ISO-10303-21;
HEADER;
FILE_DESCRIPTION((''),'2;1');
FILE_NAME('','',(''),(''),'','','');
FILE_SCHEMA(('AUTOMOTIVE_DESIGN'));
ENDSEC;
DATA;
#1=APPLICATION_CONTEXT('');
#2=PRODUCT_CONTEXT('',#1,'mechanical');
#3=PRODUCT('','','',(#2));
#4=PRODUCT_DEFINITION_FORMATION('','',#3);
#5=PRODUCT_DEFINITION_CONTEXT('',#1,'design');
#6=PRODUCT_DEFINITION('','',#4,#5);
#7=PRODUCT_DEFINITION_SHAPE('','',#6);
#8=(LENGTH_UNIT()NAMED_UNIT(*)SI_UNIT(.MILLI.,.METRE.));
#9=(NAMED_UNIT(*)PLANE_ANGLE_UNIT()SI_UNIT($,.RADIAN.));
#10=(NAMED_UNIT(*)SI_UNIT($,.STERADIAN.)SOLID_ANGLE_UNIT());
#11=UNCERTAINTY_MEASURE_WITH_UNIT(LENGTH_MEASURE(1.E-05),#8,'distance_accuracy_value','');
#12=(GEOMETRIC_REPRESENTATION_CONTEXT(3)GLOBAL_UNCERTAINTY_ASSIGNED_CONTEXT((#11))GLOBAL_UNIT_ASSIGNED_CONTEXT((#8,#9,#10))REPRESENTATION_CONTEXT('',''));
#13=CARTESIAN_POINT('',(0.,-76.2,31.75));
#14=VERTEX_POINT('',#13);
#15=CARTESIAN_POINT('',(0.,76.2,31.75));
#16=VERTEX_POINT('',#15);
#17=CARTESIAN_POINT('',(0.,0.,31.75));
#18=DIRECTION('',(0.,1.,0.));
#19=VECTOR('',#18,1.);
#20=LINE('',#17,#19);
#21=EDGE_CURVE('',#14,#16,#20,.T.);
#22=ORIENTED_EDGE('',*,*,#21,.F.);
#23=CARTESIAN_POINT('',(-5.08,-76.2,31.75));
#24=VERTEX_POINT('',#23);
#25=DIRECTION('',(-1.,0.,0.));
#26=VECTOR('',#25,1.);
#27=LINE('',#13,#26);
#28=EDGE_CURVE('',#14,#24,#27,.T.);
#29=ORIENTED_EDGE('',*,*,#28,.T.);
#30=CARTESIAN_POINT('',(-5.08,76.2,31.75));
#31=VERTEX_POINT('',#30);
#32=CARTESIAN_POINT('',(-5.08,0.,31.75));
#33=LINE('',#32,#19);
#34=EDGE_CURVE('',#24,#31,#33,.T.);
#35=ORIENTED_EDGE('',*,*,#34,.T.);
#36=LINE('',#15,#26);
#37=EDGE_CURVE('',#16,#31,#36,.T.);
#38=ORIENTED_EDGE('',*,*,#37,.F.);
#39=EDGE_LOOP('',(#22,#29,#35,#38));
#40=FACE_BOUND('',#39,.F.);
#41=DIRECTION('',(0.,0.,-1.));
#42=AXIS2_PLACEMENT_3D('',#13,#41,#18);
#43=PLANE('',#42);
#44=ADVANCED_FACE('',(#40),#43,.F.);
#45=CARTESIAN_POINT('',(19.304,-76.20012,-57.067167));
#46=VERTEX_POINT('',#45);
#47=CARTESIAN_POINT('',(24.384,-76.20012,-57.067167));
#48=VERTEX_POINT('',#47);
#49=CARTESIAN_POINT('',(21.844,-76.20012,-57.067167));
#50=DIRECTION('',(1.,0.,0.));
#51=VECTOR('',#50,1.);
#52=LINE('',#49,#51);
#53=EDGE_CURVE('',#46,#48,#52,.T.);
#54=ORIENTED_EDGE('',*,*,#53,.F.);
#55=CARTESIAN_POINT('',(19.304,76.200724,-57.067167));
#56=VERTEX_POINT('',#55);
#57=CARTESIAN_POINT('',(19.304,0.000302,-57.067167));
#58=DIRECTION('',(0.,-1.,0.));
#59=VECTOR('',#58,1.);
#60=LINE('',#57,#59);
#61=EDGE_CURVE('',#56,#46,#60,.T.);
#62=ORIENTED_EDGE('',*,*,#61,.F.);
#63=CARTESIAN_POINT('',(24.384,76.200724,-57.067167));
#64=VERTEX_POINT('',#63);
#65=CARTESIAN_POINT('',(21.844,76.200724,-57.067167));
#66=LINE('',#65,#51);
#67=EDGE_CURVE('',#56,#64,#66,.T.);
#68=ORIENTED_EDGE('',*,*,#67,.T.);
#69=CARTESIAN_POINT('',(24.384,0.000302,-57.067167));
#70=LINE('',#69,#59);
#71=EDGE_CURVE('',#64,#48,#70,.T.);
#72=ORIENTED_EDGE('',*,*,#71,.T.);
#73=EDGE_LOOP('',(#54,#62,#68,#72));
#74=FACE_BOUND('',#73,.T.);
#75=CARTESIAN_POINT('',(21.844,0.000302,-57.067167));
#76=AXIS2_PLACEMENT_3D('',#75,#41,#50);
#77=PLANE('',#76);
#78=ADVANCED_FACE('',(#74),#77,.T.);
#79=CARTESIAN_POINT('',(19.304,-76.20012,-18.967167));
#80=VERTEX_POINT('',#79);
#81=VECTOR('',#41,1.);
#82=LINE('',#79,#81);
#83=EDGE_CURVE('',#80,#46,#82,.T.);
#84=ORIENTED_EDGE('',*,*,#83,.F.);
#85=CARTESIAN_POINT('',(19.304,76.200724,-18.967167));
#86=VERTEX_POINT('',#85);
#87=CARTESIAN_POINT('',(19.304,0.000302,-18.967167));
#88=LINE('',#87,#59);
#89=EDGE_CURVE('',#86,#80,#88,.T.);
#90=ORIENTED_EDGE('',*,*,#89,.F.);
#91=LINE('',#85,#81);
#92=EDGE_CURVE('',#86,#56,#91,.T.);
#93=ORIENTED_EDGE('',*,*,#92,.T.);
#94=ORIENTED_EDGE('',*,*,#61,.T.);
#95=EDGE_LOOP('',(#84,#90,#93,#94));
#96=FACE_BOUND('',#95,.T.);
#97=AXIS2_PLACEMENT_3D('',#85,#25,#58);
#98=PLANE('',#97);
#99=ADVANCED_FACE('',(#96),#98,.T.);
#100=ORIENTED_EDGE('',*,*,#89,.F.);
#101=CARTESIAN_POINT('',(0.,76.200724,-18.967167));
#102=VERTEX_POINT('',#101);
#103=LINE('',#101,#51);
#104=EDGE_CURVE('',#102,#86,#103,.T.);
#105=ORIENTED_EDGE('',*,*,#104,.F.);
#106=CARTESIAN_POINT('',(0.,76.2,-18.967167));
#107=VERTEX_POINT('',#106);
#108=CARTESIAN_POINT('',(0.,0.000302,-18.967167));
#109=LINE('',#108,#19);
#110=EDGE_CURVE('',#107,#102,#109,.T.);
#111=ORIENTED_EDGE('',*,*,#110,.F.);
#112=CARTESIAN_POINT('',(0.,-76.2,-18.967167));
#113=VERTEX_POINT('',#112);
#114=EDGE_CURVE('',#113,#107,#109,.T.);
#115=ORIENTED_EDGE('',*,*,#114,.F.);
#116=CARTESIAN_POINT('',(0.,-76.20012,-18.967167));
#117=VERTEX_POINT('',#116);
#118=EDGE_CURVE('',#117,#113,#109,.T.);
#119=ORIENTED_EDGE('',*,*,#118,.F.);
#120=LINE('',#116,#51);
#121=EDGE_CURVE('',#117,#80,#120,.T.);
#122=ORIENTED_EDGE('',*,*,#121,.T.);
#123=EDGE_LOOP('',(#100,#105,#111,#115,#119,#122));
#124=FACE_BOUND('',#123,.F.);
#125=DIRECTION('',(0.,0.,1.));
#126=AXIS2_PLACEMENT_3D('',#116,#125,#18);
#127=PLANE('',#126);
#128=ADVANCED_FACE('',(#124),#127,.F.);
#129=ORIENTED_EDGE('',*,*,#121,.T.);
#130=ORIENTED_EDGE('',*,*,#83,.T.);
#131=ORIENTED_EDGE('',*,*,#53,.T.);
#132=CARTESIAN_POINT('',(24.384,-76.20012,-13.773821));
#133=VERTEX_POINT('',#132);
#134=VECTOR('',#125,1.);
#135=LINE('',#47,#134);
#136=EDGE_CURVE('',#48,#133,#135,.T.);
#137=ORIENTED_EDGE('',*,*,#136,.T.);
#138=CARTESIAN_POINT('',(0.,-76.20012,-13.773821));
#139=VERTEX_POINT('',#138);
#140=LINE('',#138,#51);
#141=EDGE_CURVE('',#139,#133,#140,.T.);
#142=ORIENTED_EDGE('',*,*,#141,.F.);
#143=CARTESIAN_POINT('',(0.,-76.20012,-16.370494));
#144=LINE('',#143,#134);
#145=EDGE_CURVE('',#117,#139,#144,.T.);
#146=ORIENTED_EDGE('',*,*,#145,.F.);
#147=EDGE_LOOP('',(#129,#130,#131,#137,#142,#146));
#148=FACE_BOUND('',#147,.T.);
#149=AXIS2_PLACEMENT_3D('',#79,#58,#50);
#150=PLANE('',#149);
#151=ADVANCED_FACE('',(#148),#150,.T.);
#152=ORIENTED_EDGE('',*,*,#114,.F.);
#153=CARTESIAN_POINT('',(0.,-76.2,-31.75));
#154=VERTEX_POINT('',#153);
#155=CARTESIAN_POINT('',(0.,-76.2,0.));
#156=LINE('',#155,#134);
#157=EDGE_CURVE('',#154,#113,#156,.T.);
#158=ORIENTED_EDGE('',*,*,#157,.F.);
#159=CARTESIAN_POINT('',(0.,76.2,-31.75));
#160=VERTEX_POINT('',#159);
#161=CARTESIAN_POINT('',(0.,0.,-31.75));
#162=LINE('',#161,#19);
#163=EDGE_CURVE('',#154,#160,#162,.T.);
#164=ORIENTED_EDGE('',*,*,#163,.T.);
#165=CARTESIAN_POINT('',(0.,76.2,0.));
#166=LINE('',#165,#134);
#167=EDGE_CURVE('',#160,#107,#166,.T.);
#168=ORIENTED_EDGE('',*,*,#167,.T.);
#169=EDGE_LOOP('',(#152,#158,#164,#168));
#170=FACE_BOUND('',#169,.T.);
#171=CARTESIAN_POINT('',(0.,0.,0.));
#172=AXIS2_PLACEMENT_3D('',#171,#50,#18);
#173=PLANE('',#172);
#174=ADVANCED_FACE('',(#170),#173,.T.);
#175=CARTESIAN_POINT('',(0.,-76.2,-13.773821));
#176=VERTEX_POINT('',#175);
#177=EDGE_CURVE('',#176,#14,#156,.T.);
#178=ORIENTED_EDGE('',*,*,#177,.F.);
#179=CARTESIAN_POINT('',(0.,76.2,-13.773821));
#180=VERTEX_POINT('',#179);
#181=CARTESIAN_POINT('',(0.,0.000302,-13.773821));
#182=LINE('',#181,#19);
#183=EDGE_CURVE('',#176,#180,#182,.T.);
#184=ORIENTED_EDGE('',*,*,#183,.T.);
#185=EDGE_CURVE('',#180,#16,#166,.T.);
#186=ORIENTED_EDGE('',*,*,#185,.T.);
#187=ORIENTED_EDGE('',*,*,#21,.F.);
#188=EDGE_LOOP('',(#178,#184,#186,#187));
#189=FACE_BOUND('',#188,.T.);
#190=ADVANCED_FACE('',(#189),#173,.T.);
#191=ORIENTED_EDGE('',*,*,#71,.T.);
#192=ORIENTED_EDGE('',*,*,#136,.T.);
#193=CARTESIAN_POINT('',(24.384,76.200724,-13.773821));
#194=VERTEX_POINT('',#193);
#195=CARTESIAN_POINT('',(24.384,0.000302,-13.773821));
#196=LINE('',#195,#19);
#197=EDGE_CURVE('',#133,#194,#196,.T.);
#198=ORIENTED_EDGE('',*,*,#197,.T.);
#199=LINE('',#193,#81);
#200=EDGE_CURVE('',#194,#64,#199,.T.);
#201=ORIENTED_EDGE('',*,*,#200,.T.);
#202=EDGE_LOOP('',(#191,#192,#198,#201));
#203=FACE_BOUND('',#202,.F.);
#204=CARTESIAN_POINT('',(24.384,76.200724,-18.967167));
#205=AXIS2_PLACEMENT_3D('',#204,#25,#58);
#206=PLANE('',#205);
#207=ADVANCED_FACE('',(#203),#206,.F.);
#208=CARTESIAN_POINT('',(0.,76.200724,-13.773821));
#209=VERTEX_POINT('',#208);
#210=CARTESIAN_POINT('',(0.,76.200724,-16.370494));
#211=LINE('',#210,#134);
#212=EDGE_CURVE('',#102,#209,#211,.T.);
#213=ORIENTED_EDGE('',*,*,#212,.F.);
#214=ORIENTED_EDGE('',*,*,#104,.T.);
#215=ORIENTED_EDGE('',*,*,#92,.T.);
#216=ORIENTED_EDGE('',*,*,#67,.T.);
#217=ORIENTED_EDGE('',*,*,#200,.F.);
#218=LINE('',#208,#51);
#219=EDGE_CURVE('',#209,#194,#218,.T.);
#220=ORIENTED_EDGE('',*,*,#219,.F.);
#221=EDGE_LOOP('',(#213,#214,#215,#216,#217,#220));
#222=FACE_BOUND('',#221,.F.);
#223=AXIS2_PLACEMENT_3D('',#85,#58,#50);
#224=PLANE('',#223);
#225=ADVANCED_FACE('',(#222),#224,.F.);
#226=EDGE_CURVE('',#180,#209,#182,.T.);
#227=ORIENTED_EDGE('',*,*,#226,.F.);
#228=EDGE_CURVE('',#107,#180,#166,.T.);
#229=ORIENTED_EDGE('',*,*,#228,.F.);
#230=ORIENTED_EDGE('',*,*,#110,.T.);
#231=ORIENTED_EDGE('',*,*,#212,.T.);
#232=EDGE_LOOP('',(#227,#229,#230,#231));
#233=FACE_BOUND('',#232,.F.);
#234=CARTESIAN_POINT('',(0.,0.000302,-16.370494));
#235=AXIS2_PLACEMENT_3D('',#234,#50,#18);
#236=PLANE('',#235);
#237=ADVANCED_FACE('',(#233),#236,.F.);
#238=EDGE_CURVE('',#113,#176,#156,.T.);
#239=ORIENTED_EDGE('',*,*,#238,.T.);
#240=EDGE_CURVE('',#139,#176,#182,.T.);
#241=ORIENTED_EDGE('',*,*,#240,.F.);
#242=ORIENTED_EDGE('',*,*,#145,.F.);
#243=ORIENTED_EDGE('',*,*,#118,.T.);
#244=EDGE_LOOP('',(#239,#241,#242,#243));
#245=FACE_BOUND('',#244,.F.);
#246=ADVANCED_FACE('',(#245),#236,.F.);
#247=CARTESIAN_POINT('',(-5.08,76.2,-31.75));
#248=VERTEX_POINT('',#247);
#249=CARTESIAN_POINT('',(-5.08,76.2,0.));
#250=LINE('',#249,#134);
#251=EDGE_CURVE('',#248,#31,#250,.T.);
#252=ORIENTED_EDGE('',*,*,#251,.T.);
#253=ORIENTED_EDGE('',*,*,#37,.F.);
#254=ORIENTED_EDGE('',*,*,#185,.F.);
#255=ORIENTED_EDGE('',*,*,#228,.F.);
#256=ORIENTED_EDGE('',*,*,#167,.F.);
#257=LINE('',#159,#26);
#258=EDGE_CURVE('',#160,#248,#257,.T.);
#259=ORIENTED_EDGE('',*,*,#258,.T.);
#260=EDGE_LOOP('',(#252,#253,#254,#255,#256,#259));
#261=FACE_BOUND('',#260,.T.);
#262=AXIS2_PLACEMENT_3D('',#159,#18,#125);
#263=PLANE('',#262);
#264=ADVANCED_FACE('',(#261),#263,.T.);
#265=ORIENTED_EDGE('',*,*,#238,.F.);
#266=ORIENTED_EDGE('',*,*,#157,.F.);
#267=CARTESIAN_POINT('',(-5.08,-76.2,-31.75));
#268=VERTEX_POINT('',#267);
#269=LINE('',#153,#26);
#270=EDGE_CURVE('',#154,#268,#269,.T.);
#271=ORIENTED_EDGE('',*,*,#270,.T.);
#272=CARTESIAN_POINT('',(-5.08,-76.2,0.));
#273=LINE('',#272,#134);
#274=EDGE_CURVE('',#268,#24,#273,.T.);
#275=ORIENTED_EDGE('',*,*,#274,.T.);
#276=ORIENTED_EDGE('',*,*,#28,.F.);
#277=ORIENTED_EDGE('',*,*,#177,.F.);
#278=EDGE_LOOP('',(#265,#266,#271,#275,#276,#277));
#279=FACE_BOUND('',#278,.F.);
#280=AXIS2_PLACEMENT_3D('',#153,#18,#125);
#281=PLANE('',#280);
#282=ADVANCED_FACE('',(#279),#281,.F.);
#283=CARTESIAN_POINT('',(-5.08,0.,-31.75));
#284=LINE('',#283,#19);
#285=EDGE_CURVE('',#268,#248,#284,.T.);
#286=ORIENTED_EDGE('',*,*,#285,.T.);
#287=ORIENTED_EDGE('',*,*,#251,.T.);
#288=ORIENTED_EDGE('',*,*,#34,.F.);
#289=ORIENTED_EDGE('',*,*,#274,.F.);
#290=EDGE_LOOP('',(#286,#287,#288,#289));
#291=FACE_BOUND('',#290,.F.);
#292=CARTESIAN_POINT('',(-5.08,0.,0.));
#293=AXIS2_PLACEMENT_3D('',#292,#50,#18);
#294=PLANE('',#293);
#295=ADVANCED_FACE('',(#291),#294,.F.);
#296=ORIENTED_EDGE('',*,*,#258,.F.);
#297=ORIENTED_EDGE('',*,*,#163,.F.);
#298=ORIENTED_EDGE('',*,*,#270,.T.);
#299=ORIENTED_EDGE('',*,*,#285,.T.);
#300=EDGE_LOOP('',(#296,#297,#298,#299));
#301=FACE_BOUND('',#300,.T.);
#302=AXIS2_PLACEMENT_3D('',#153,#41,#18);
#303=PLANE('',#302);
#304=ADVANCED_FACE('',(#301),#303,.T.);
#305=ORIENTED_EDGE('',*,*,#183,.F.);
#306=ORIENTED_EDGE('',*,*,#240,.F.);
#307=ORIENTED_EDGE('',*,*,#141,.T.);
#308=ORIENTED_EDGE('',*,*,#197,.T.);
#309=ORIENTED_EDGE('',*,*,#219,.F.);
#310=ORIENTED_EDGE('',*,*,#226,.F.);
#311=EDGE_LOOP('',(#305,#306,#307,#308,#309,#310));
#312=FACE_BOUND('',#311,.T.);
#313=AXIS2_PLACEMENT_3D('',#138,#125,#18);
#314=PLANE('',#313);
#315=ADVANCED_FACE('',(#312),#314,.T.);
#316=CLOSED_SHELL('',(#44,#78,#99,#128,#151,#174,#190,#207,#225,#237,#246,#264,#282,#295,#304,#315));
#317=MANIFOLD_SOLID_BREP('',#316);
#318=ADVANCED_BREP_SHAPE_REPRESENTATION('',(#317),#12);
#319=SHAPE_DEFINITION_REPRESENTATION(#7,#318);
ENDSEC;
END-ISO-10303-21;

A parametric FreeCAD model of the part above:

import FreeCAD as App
import Part
import Sketcher
from FreeCAD import Vector
Q = App.Units.Quantity

doc = App.newDocument("Part")
body = doc.addObject("PartDesign::Body", "Body")

sketch1 = body.newObject("Sketcher::SketchObject", "Sketch")
sketch1.AttachmentSupport = (doc.getObject("YZ_Plane"), [""])
sketch1.MapMode = "FlatFace"
sketch1.addGeometry(Part.LineSegment(Vector(-76, 32, 0), Vector(-76, -32, 0)), False)
sketch1.addGeometry(Part.LineSegment(Vector(-76, -32, 0), Vector(76, -32, 0)), False)
sketch1.addGeometry(Part.LineSegment(Vector(76, -32, 0), Vector(76, 32, 0)), False)
sketch1.addGeometry(Part.LineSegment(Vector(76, 32, 0), Vector(-76, 32, 0)), False)
sketch1.addConstraint(Sketcher.Constraint("Coincident", 0, 2, 1, 1))
sketch1.addConstraint(Sketcher.Constraint("Coincident", 1, 2, 2, 1))
sketch1.addConstraint(Sketcher.Constraint("Coincident", 2, 2, 3, 1))
sketch1.addConstraint(Sketcher.Constraint("Coincident", 3, 2, 0, 1))
sketch1.addConstraint(Sketcher.Constraint("Vertical", 0))
sketch1.addConstraint(Sketcher.Constraint("Horizontal", 1))
sketch1.addConstraint(Sketcher.Constraint("Vertical", 2))
sketch1.addConstraint(Sketcher.Constraint("Horizontal", 3))
sketch1.addConstraint(Sketcher.Constraint("Symmetric", 0, 2, 2, 2, -1, 1))
sketch1.addConstraint(Sketcher.Constraint("DistanceX", 1, 1, 1, 2, Q("6 in")))
sketch1.addConstraint(Sketcher.Constraint("DistanceY", 0, 2, 0, 1, Q("2.5 in")))
pad1 = body.newObject("PartDesign::Pad", "Pad")
pad1.Profile = sketch1
pad1.Length = Q("0.2 in")
pad1.Reversed = True

sketch2 = body.newObject("Sketcher::SketchObject", "Sketch001")
sketch2.AttachmentSupport = (doc.getObject("YZ_Plane"), [""])
sketch2.MapMode = "FlatFace"
sketch2.addGeometry(Part.LineSegment(Vector(-76, -14, 0), Vector(-76, -19, 0)), False)
sketch2.addGeometry(Part.LineSegment(Vector(-76, -19, 0), Vector(76, -19, 0)), False)
sketch2.addGeometry(Part.LineSegment(Vector(76, -19, 0), Vector(76, -14, 0)), False)
sketch2.addGeometry(Part.LineSegment(Vector(76, -14, 0), Vector(-76, -14, 0)), False)
sketch2.addConstraint(Sketcher.Constraint("Coincident", 0, 2, 1, 1))
sketch2.addConstraint(Sketcher.Constraint("Coincident", 1, 2, 2, 1))
sketch2.addConstraint(Sketcher.Constraint("Coincident", 2, 2, 3, 1))
sketch2.addConstraint(Sketcher.Constraint("Coincident", 3, 2, 0, 1))
sketch2.addConstraint(Sketcher.Constraint("Vertical", 0))
sketch2.addConstraint(Sketcher.Constraint("Horizontal", 1))
sketch2.addConstraint(Sketcher.Constraint("Vertical", 2))
sketch2.addConstraint(Sketcher.Constraint("Horizontal", 3))
sketch2.addConstraint(Sketcher.Constraint("DistanceX", 1, 1, 1, 2, 152.400844))
sketch2.addConstraint(Sketcher.Constraint("DistanceY", 0, 2, 0, 1, 5.193346))
sketch2.addConstraint(Sketcher.Constraint("DistanceX", 0, 2, -1, 1, 76.20012))
sketch2.addConstraint(Sketcher.Constraint("DistanceY", 2, 2, -1, 1, 13.773821))
pad2 = body.newObject("PartDesign::Pad", "Pad001")
pad2.Profile = sketch2
pad2.Length = Q("0.96 in")

sketch3 = body.newObject("Sketcher::SketchObject", "Sketch002")
sketch3.AttachmentSupport = (doc.getObject("XY_Plane"), [""])
sketch3.MapMode = "FlatFace"
sketch3.AttachmentOffset = App.Placement(Vector(0, 0, -18.967167), App.Rotation())
sketch3.addGeometry(Part.LineSegment(Vector(19, -76, 0), Vector(19, 76, 0)), False)
sketch3.addGeometry(Part.LineSegment(Vector(19, 76, 0), Vector(24, 76, 0)), False)
sketch3.addGeometry(Part.LineSegment(Vector(24, 76, 0), Vector(24, -76, 0)), False)
sketch3.addGeometry(Part.LineSegment(Vector(24, -76, 0), Vector(19, -76, 0)), False)
sketch3.addConstraint(Sketcher.Constraint("Coincident", 0, 2, 1, 1))
sketch3.addConstraint(Sketcher.Constraint("Coincident", 1, 2, 2, 1))
sketch3.addConstraint(Sketcher.Constraint("Coincident", 2, 2, 3, 1))
sketch3.addConstraint(Sketcher.Constraint("Coincident", 3, 2, 0, 1))
sketch3.addConstraint(Sketcher.Constraint("Vertical", 0))
sketch3.addConstraint(Sketcher.Constraint("Horizontal", 1))
sketch3.addConstraint(Sketcher.Constraint("Vertical", 2))
sketch3.addConstraint(Sketcher.Constraint("Horizontal", 3))
sketch3.addConstraint(Sketcher.Constraint("DistanceX", 1, 1, 1, 2, Q("0.2 in")))
sketch3.addConstraint(Sketcher.Constraint("DistanceX", -1, 1, 0, 2, Q("0.76 in")))
sketch3.addConstraint(Sketcher.Constraint("DistanceY", 0, 1, 0, 2, 152.400844))
sketch3.addConstraint(Sketcher.Constraint("DistanceY", 2, 2, -1, 1, 76.20012))
pad3 = body.newObject("PartDesign::Pad", "Pad002")
pad3.Profile = sketch3
pad3.Length = Q("1.5 in")
pad3.Reversed = True

doc.recompute()
